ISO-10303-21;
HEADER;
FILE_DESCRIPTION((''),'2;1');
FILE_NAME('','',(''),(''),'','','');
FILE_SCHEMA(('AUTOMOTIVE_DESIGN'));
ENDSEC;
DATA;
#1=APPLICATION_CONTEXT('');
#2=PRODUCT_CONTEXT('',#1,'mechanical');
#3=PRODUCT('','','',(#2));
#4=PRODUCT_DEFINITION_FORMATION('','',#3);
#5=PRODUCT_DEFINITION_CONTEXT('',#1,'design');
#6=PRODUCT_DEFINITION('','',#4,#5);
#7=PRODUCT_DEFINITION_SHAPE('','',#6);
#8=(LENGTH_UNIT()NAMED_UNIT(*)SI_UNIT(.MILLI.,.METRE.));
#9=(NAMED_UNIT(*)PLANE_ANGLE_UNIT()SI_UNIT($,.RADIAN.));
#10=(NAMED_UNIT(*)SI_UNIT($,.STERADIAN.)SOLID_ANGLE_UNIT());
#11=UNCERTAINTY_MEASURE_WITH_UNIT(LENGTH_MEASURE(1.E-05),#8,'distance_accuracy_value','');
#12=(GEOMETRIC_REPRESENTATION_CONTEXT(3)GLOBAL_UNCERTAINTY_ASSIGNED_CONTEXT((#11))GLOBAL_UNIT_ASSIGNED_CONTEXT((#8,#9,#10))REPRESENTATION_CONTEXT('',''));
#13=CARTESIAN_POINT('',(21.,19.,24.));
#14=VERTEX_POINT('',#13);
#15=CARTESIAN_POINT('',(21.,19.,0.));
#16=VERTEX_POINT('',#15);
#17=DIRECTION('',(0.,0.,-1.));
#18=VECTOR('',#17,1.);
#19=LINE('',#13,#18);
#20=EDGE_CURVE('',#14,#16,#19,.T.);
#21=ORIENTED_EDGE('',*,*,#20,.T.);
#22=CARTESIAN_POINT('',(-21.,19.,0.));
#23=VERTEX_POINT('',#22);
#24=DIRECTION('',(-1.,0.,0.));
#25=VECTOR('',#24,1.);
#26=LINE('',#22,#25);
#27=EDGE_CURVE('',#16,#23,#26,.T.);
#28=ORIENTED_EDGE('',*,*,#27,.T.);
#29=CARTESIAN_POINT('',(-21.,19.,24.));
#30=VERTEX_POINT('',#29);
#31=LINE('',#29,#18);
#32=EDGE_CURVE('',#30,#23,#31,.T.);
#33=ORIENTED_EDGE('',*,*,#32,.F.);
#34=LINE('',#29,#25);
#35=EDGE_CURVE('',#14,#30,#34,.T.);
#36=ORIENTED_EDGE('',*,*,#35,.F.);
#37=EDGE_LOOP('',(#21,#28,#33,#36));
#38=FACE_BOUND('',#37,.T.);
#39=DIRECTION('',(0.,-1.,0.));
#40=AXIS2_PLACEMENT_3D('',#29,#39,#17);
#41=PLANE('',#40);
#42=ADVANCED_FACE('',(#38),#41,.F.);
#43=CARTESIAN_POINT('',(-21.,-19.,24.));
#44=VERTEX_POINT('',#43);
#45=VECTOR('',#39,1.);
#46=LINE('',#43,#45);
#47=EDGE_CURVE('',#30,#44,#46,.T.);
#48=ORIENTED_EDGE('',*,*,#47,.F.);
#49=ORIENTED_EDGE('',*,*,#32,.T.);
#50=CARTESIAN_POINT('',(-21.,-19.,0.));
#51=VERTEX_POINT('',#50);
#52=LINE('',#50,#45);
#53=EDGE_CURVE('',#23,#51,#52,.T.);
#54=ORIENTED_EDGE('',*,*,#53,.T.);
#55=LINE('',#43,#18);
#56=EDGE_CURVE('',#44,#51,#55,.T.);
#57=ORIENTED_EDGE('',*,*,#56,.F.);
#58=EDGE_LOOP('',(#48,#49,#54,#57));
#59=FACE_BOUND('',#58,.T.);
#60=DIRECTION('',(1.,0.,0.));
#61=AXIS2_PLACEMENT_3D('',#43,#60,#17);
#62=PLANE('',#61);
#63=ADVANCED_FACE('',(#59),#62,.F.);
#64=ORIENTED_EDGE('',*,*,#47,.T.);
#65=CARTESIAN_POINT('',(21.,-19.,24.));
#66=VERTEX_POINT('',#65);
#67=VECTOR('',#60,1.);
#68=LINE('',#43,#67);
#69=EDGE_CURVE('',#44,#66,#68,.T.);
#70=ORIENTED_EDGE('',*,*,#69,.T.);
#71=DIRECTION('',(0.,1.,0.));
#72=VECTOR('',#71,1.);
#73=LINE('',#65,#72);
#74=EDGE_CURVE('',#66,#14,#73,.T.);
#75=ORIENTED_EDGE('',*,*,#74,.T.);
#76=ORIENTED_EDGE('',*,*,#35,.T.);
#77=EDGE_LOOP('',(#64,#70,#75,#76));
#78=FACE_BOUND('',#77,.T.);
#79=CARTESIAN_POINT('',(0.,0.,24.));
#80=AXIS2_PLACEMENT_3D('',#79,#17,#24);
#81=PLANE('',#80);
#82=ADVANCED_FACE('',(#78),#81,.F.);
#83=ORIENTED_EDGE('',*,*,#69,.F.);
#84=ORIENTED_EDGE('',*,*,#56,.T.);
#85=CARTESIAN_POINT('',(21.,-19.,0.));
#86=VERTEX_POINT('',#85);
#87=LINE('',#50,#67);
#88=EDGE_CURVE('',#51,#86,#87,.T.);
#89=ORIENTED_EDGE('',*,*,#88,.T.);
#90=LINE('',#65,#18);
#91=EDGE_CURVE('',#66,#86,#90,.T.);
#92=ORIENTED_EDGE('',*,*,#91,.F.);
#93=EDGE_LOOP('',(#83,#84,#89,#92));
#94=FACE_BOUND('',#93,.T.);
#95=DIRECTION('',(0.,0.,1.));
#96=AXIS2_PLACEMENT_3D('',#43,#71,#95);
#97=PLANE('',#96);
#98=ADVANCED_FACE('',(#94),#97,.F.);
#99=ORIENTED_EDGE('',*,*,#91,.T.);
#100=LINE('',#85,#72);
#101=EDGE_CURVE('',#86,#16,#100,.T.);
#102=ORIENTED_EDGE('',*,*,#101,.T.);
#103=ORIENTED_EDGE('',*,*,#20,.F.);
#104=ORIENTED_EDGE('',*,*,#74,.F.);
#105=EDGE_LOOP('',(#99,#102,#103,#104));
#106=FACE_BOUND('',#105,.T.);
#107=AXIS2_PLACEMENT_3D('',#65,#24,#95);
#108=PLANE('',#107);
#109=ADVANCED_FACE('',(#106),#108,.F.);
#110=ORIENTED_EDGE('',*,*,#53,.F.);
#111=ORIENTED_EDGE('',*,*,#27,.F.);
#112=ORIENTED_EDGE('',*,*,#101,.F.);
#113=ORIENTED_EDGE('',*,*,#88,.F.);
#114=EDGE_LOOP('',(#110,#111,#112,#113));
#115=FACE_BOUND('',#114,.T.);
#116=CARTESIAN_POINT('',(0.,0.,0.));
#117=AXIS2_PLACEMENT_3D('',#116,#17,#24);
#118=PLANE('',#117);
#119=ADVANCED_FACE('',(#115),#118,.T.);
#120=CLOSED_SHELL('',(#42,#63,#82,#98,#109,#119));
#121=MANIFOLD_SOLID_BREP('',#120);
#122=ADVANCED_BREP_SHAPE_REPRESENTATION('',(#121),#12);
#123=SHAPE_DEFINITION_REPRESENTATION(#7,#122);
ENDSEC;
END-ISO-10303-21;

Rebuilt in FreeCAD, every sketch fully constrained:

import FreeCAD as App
import Part
import Sketcher
from FreeCAD import Vector
Q = App.Units.Quantity


def add_polygon(sketch, points):
    """Adds a closed chain of lines whose ends are joined by coincident constraints."""
    first, n = sketch.GeometryCount, len(points)
    for a, b in zip(points, points[1:] + points[:1]):
        sketch.addGeometry(Part.LineSegment(App.Vector(*a, 0), App.Vector(*b, 0)), False)
    for i in range(n):
        sketch.addConstraint(Sketcher.Constraint("Coincident", first + i, 2, first + (i + 1) % n, 1))

doc = App.newDocument("Part")
body = doc.addObject("PartDesign::Body", "Body")

# Sketch on XY plane
sketch1 = body.newObject("Sketcher::SketchObject", "Sketch")
sketch1.AttachmentSupport = (doc.getObject("XY_Plane"), [""])
sketch1.MapMode = "FlatFace"
add_polygon(sketch1, [(-21, 19), (-21, -19), (21, -19), (21, 19)])  # lines 0-3
sketch1.addConstraint([
    Sketcher.Constraint("Vertical", 0),
    Sketcher.Constraint("Horizontal", 1),
    Sketcher.Constraint("Vertical", 2),
    Sketcher.Constraint("Horizontal", 3),
    Sketcher.Constraint("Symmetric", 0, 2, 2, 2, -1, 1),
    Sketcher.Constraint("DistanceX", 1, 1, 1, 2, Q("42 mm")),
    Sketcher.Constraint("DistanceY", 0, 2, 0, 1, Q("38 mm")),
])
pad1 = body.newObject("PartDesign::Pad", "Pad")
pad1.Profile = sketch1
pad1.Length = 24

doc.recompute()
